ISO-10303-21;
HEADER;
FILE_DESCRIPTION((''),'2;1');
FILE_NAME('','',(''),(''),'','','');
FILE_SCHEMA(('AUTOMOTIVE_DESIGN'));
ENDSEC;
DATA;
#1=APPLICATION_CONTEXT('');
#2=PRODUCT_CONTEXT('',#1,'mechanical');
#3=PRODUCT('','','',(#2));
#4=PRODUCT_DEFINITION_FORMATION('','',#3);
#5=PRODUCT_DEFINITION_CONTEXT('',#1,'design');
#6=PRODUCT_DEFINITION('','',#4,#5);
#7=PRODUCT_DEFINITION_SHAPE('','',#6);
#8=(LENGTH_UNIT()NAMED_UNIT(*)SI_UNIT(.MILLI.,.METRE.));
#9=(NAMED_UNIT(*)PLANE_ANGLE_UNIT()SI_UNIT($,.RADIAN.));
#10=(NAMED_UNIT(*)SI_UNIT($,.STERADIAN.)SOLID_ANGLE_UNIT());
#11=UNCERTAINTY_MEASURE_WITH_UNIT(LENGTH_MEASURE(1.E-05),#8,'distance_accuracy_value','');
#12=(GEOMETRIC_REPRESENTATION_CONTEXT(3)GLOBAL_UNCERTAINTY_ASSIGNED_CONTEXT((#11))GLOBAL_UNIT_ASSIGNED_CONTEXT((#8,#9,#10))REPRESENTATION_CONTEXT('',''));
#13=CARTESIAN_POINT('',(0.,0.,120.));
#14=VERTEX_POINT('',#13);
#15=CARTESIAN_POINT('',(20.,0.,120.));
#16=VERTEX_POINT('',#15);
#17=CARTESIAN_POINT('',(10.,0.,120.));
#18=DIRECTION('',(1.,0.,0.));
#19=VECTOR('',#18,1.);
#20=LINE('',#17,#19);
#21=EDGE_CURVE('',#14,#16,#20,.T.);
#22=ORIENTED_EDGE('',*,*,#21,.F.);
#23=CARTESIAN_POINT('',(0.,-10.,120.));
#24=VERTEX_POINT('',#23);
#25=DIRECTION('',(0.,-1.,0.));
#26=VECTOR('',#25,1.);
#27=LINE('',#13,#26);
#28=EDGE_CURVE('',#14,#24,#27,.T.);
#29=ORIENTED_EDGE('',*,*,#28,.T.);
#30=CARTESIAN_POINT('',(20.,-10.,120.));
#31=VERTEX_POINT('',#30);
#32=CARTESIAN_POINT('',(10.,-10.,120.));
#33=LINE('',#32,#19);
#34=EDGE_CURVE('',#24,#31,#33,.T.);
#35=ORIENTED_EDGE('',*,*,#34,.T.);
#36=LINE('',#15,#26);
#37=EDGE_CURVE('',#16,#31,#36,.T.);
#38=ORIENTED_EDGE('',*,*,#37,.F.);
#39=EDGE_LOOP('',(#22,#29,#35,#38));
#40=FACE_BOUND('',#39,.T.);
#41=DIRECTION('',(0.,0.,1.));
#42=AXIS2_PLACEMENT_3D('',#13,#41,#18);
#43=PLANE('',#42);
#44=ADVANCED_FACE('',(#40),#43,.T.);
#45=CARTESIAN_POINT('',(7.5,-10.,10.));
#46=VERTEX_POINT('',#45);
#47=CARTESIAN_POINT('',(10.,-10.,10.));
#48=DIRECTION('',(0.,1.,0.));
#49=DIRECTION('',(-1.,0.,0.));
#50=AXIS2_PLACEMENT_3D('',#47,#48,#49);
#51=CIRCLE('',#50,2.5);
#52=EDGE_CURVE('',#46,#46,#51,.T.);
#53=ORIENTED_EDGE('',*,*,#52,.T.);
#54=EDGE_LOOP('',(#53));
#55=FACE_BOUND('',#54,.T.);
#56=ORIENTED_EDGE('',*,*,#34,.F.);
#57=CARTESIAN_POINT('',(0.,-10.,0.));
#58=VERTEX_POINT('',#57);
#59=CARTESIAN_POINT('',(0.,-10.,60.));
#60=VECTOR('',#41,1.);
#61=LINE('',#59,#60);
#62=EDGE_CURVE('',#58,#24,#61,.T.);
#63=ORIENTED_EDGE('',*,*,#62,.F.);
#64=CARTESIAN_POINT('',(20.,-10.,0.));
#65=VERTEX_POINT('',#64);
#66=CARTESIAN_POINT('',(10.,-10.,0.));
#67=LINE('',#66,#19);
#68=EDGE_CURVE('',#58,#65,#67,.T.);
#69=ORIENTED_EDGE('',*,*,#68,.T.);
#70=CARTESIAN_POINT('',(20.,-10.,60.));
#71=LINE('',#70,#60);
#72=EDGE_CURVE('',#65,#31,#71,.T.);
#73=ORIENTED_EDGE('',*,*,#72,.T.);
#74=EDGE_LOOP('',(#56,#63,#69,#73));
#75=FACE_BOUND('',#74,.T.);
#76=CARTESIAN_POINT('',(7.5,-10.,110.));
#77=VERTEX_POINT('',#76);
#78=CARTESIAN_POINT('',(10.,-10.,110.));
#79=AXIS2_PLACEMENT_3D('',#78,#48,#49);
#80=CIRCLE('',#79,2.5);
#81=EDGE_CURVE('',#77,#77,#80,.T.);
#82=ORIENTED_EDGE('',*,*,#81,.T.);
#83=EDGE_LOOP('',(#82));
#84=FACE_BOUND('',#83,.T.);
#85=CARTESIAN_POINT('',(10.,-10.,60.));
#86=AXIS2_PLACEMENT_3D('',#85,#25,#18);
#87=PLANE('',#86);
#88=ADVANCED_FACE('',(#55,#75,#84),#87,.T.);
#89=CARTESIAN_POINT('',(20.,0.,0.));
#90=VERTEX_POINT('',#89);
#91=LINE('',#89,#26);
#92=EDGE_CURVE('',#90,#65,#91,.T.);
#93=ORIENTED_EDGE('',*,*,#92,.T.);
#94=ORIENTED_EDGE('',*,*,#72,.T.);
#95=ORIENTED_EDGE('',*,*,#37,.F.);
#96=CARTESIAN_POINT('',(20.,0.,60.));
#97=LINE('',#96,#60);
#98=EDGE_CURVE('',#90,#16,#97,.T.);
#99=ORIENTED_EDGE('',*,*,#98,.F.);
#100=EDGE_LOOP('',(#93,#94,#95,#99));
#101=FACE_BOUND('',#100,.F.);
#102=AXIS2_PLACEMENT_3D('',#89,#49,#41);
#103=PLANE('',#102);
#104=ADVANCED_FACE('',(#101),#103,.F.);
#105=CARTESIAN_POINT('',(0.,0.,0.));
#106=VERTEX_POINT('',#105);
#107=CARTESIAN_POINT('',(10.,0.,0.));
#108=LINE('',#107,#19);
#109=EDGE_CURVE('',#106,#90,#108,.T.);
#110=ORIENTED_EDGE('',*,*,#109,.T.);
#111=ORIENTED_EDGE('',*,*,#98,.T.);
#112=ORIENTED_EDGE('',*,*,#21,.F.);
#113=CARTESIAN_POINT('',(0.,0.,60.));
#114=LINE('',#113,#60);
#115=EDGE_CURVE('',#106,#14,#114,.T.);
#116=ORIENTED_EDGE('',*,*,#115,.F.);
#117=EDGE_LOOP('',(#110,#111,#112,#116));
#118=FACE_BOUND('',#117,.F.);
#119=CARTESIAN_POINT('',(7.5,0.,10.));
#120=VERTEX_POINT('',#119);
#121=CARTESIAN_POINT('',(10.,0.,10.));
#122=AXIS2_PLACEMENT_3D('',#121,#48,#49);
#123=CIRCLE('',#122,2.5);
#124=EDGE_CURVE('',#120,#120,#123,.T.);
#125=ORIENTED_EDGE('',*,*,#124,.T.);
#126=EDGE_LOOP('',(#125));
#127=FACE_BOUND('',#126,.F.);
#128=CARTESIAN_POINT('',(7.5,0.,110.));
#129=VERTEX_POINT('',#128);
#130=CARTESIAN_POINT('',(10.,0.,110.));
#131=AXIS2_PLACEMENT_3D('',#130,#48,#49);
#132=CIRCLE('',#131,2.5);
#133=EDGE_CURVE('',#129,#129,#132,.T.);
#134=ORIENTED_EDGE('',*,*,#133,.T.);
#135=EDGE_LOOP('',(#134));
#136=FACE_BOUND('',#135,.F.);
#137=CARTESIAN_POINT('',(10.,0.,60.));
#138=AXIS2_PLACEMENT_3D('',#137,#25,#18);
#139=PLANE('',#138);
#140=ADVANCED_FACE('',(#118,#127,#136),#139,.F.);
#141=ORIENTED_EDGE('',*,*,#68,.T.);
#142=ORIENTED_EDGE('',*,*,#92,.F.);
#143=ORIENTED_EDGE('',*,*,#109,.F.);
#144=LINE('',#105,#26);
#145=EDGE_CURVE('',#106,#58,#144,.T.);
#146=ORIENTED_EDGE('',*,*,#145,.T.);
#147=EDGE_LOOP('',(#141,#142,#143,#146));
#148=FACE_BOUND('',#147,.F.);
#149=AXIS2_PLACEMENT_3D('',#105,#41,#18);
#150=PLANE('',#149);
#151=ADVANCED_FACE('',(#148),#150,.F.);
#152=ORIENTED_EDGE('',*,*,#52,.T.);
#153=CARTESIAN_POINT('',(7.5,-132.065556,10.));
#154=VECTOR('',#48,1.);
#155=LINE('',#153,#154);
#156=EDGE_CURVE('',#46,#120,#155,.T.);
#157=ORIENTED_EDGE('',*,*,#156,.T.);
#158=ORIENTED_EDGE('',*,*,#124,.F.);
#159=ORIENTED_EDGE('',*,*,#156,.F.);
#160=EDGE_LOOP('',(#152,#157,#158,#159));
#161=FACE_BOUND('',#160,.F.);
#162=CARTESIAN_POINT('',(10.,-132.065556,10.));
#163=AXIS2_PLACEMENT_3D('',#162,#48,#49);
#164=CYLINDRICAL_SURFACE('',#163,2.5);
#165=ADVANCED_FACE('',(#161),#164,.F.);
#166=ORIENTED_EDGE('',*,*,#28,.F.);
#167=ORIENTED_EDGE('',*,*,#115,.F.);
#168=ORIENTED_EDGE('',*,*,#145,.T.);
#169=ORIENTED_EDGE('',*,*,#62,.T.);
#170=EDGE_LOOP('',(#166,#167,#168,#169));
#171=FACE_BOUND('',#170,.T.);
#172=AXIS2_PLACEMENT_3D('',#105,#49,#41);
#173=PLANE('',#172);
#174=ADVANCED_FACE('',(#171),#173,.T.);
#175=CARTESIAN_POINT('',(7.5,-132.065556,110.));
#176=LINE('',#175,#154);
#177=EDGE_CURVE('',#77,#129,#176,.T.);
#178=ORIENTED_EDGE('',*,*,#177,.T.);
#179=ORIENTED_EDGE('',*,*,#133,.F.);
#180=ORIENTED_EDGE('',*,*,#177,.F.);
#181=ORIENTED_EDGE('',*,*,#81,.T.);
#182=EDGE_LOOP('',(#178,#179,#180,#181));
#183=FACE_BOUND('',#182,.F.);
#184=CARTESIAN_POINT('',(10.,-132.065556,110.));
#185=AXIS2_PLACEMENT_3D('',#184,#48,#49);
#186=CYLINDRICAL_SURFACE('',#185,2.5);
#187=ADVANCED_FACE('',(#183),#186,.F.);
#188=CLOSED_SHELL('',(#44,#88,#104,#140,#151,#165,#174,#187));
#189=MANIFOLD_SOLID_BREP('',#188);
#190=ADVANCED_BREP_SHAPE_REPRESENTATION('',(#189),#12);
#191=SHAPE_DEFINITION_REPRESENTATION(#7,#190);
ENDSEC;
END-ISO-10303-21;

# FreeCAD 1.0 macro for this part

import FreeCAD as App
import Part
import Sketcher
from FreeCAD import Vector

doc = App.newDocument("Part")
params = doc.addObject("Spreadsheet::Sheet", "Params")
for row, (alias, value) in enumerate([
    ("sketch1_width", "20 mm"),
    ("sketch1_height", "120 mm"),
    ("pad1_length", "10 mm"),
    ("sketch2_diameter", "5 mm"),
    ("hole_diameter", "5 mm"),
], start=1):
    params.set(f"A{row}", alias)
    params.set(f"B{row}", "=" + value)
    params.setAlias(f"B{row}", alias)

body = doc.addObject("PartDesign::Body", "Body")

# Sketch on XZ plane
sketch1 = body.newObject("Sketcher::SketchObject", "Sketch")
sketch1.AttachmentSupport = (doc.getObject("XZ_Plane"), [""])
sketch1.MapMode = "FlatFace"
sketch1.addGeometry([
    Part.LineSegment(Vector(0, 120, 0), Vector(0, 0, 0)),
    Part.LineSegment(Vector(0, 0, 0), Vector(20, 0, 0)),
    Part.LineSegment(Vector(20, 0, 0), Vector(20, 120, 0)),
    Part.LineSegment(Vector(20, 120, 0), Vector(0, 120, 0)),
], False)
sketch1.addConstraint([
    Sketcher.Constraint("Coincident", 0, 2, 1, 1),
    Sketcher.Constraint("Coincident", 1, 2, 2, 1),
    Sketcher.Constraint("Coincident", 2, 2, 3, 1),
    Sketcher.Constraint("Coincident", 3, 2, 0, 1),
    Sketcher.Constraint("Vertical", 0),
    Sketcher.Constraint("Horizontal", 1),
    Sketcher.Constraint("Vertical", 2),
    Sketcher.Constraint("Horizontal", 3),
    Sketcher.Constraint("Coincident", 0, 2, -1, 1),
    Sketcher.Constraint("DistanceX", 1, 1, 1, 2, 20.0),
    Sketcher.Constraint("DistanceY", 0, 2, 0, 1, 120.0),
])
sketch1.setExpression("Constraints[9]", "Params.sketch1_width")
sketch1.setExpression("Constraints[10]", "Params.sketch1_height")
pad1 = body.newObject("PartDesign::Pad", "Pad")
pad1.Profile = sketch1
pad1.setExpression("Length", "Params.pad1_length")

# Sketch on XZ plane
sketch2 = body.newObject("Sketcher::SketchObject", "Sketch001")
sketch2.AttachmentSupport = (doc.getObject("XZ_Plane"), [""])
sketch2.MapMode = "FlatFace"
sketch2.AttachmentOffset = App.Placement(Vector(0, 0, 10), App.Rotation())
sketch2.addGeometry([
    Part.Circle(Vector(10, 110, 0), Vector(0, 0, 1), 2.5),
    Part.Circle(Vector(10, 10, 0), Vector(0, 0, 1), 2.5),
], False)
sketch2.addConstraint([
    Sketcher.Constraint("Equal", 0, 1),
    Sketcher.Constraint("Vertical", 0, 3, 1, 3),
    Sketcher.Constraint("Diameter", 0, 5.0),
    Sketcher.Constraint("DistanceX", -1, 1, 0, 3, 10.0),
    Sketcher.Constraint("DistanceY", -1, 1, 0, 3, 110.0),
    Sketcher.Constraint("DistanceY", -1, 1, 1, 3, 10.0),
])
sketch2.setExpression("Constraints[2]", "Params.sketch2_diameter")
doc.recompute()
hole = body.newObject("PartDesign::Hole", "Hole")
hole.Profile = sketch2
hole.ThreadType = "None"
hole.setExpression("Diameter", "Params.hole_diameter")
hole.DepthType = "ThroughAll"

doc.recompute()
